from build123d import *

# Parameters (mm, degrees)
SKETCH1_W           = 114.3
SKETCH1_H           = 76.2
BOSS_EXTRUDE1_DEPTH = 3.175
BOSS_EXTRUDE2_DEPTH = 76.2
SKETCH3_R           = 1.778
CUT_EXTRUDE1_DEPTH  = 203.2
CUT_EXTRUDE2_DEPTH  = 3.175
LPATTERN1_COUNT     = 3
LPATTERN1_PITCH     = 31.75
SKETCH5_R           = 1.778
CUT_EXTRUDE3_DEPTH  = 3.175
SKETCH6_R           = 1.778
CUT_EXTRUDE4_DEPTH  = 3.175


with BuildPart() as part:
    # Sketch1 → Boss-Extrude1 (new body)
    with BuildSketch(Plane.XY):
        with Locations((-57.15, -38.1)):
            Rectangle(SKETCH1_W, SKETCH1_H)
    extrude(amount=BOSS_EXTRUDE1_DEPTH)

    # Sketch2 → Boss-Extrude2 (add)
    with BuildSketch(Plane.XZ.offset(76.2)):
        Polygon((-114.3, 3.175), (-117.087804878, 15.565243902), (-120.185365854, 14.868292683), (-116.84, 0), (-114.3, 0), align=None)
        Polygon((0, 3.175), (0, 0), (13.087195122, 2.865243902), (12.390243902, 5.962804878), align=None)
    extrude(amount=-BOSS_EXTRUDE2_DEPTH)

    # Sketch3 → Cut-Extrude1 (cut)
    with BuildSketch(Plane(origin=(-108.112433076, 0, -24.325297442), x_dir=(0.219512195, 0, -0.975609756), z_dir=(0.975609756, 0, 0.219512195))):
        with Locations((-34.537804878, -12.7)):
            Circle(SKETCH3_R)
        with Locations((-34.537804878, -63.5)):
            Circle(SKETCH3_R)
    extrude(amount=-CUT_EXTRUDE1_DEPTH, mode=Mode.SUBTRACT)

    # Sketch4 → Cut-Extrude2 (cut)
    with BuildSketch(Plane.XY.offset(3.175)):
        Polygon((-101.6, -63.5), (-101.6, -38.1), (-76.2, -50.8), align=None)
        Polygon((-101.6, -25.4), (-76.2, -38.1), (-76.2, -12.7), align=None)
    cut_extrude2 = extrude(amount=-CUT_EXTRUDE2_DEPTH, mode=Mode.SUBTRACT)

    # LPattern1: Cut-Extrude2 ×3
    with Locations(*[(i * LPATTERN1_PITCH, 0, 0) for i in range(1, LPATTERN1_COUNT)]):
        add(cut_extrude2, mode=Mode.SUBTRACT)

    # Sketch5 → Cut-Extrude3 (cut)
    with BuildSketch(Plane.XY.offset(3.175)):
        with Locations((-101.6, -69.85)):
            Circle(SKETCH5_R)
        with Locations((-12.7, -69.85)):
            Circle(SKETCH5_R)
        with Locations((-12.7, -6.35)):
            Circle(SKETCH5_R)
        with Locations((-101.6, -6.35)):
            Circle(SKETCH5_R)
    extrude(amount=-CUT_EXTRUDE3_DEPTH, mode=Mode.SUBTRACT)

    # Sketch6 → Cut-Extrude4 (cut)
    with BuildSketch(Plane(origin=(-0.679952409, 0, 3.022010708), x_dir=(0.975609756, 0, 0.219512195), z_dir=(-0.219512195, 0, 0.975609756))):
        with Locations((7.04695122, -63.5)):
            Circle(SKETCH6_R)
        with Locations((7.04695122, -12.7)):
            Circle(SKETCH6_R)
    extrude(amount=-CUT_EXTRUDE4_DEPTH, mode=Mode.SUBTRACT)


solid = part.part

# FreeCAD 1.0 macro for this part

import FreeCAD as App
import Part
import Sketcher
Q = App.Units.Quantity


def add_polygon(sketch, points):
    """Adds a closed chain of lines whose ends are joined by coincident constraints."""
    first, n = sketch.GeometryCount, len(points)
    for a, b in zip(points, points[1:] + points[:1]):
        sketch.addGeometry(Part.LineSegment(App.Vector(*a, 0), App.Vector(*b, 0)), False)
    for i in range(n):
        sketch.addConstraint(Sketcher.Constraint("Coincident", first + i, 2, first + (i + 1) % n, 1))

doc = App.newDocument("Part")
body = doc.addObject("PartDesign::Body", "Body")

sketch1 = body.newObject("Sketcher::SketchObject", "Sketch")
sketch1.AttachmentSupport = (doc.getObject("XY_Plane"), [""])
sketch1.MapMode = "FlatFace"
add_polygon(sketch1, [(-114.3, 0), (-114.3, -76.2), (0, -76.2), (0, 0)])
sketch1.addConstraint([
    Sketcher.Constraint("Vertical", 0),
    Sketcher.Constraint("Horizontal", 1),
    Sketcher.Constraint("Vertical", 2),
    Sketcher.Constraint("Horizontal", 3),
    Sketcher.Constraint("Coincident", 2, 2, -1, 1),
    Sketcher.Constraint("DistanceY", 0, 2, 0, 1, Q("3 in")),
    Sketcher.Constraint("DistanceX", 1, 1, 1, 2, Q("4.5 in")),
])
pad1 = body.newObject("PartDesign::Pad", "Pad")
pad1.Profile = sketch1
pad1.Length = Q("0.125 in")

sketch2 = body.newObject("Sketcher::SketchObject", "Sketch001")
sketch2.AttachmentSupport = (doc.getObject("XZ_Plane"), [""])
sketch2.MapMode = "FlatFace"
sketch2.AttachmentOffset = App.Placement(App.Vector(0, 0, 3 * 25.4), App.Rotation())
add_polygon(sketch2, [(-114.3, 3.175), (-117.087805, 15.565244), (-120.185366, 14.868293), (-116.84, 0), (-114.3, 0)])
add_polygon(sketch2, [(0, 3.175), (0, 0), (13.087195, 2.865244), (12.390244, 5.962805)])
sketch2.addConstraint([
    Sketcher.Constraint("Horizontal", 3),
    Sketcher.Constraint("Vertical", 4),
    Sketcher.Constraint("Vertical", 5),
    Sketcher.Constraint("Coincident", 5, 2, -1, 1),
    Sketcher.Constraint("PointOnObject", 2, 2, -1),
    Sketcher.Constraint("Perpendicular", 0, 1),
    Sketcher.Constraint("Perpendicular", 1, 2),
    Sketcher.Constraint("Parallel", 2, 7),
    Sketcher.Constraint("Perpendicular", 7, 8),
    Sketcher.Constraint("Horizontal", 4, 2, 8, 2),
    Sketcher.Constraint("Equal", 1, 7),
    Sketcher.Constraint("Equal", 0, 8),
    Sketcher.Constraint("DistanceX", 3, 1, 3, 2, Q("0.1 in")),
    Sketcher.Constraint("Distance", 0, Q("0.5 in")),
    Sketcher.Constraint("Distance", 2, Q("0.6 in")),
    Sketcher.Constraint("DistanceX", 2, 2, -1, 1, Q("4.6 in")),
    Sketcher.Constraint("DistanceY", 6, 2, 0, 2, Q("0.5 in")),
])
pad2 = body.newObject("PartDesign::Pad", "Pad001")
pad2.Profile = sketch2
pad2.Length = Q("3 in")
pad2.Reversed = True

sketch3 = body.newObject("Sketcher::SketchObject", "Sketch002")
sketch3.Placement = App.Placement(App.Vector(-108.112433, 0, -24.325297), App.Rotation(App.Vector(0.219512195, 0, -0.975609756), App.Vector(0, 1, 0), App.Vector(0.975609756, 0, 0.219512195), "ZXY"))
sketch3.addGeometry([
    Part.Circle(App.Vector(-34.537805, -12.7, 0), App.Vector(0, 0, 1), 1.778),
    Part.Circle(App.Vector(-34.537805, -63.5, 0), App.Vector(0, 0, 1), 1.778),
], False)
sketch3.addConstraint([
    Sketcher.Constraint("Equal", 0, 1),
    Sketcher.Constraint("Vertical", 0, 3, 1, 3),
    Sketcher.Constraint("Diameter", 0, Q("0.14 in")),
    Sketcher.Constraint("DistanceY", 1, 3, 0, 3, Q("2 in")),
    Sketcher.Constraint("DistanceY", 0, 3, -1, 1, Q("0.5 in")),
    Sketcher.Constraint("DistanceX", 0, 3, -1, 1, Q("34.537805 mm")),
])
pocket1 = body.newObject("PartDesign::Pocket", "Pocket")
pocket1.Profile = sketch3
pocket1.Length = Q("8 in")

sketch4 = body.newObject("Sketcher::SketchObject", "Sketch003")
sketch4.AttachmentSupport = (doc.getObject("XY_Plane"), [""])
sketch4.MapMode = "FlatFace"
sketch4.AttachmentOffset = App.Placement(App.Vector(0, 0, 0.125 * 25.4), App.Rotation())
add_polygon(sketch4, [(-101.6, -38.1), (-101.6, -63.5), (-76.2, -50.8)])
add_polygon(sketch4, [(-101.6, -25.4), (-76.2, -38.1), (-76.2, -12.7)])
sketch4.addConstraint([
    Sketcher.Constraint("Vertical", 0),
    Sketcher.Constraint("Vertical", 4),
    Sketcher.Constraint("Parallel", 2, 3),
    Sketcher.Constraint("Parallel", 1, 5),
    Sketcher.Constraint("Horizontal", 2, 2, 3, 2),
    Sketcher.Constraint("Vertical", 1, 2, 3, 2),
    Sketcher.Constraint("Vertical", 2, 2, 5, 2),
    Sketcher.Constraint("Equal", 1, 2),
    Sketcher.Constraint("DistanceY", 0, 2, 0, 1, Q("1 in")),
    Sketcher.Constraint("DistanceX", 0, 2, -1, 1, Q("4 in")),
    Sketcher.Constraint("DistanceX", 1, 2, -1, 1, Q("3 in")),
    Sketcher.Constraint("DistanceY", 1, 2, -1, 1, Q("2 in")),
])
pocket2 = body.newObject("PartDesign::Pocket", "Pocket001")
pocket2.Profile = sketch4
pocket2.Length = Q("0.125 in")
doc.recompute()

linearpattern = body.newObject("PartDesign::LinearPattern", "LinearPattern")
linearpattern.Originals = [pocket2]
linearpattern.Direction = (doc.getObject("X_Axis"), [""])
linearpattern.Mode = "offset"
linearpattern.Offset = Q("1.25 in")
linearpattern.Occurrences = 3
body.Tip = linearpattern

sketch5 = body.newObject("Sketcher::SketchObject", "Sketch004")
sketch5.AttachmentSupport = (doc.getObject("XY_Plane"), [""])
sketch5.MapMode = "FlatFace"
sketch5.AttachmentOffset = App.Placement(App.Vector(0, 0, 0.125 * 25.4), App.Rotation())
sketch5.addGeometry([
    Part.Circle(App.Vector(-101.6, -69.85, 0), App.Vector(0, 0, 1), 1.778),
    Part.Circle(App.Vector(-12.7, -69.85, 0), App.Vector(0, 0, 1), 1.778),
    Part.Circle(App.Vector(-12.7, -6.35, 0), App.Vector(0, 0, 1), 1.778),
    Part.Circle(App.Vector(-101.6, -6.35, 0), App.Vector(0, 0, 1), 1.778),
], False)
sketch5.addConstraint([
    Sketcher.Constraint("Equal", 0, 1),
    Sketcher.Constraint("Equal", 1, 2),
    Sketcher.Constraint("Equal", 2, 3),
    Sketcher.Constraint("Horizontal", 0, 3, 1, 3),
    Sketcher.Constraint("Horizontal", 2, 3, 3, 3),
    Sketcher.Constraint("Vertical", 1, 3, 2, 3),
    Sketcher.Constraint("Vertical", 0, 3, 3, 3),
    Sketcher.Constraint("Diameter", 0, Q("0.14 in")),
    Sketcher.Constraint("DistanceX", 0, 3, -1, 1, Q("4 in")),
    Sketcher.Constraint("DistanceX", 1, 3, -1, 1, Q("0.5 in")),
    Sketcher.Constraint("DistanceY", 1, 3, 2, 3, Q("2.5 in")),
    Sketcher.Constraint("DistanceY", 0, 3, -1, 1, Q("2.75 in")),
])
pocket3 = body.newObject("PartDesign::Pocket", "Pocket002")
pocket3.Profile = sketch5
pocket3.Length = Q("0.125 in")

sketch6 = body.newObject("Sketcher::SketchObject", "Sketch005")
sketch6.Placement = App.Placement(App.Vector(-0.679952, 0, 3.022011), App.Rotation(App.Vector(0.975609756, 0, 0.219512195), App.Vector(0, 1, 0), App.Vector(-0.219512195, 0, 0.975609756), "ZXY"))
sketch6.addGeometry([
    Part.Circle(App.Vector(7.046951, -63.5, 0), App.Vector(0, 0, 1), 1.778),
    Part.Circle(App.Vector(7.046951, -12.7, 0), App.Vector(0, 0, 1), 1.778),
], False)
sketch6.addConstraint([
    Sketcher.Constraint("Equal", 0, 1),
    Sketcher.Constraint("Vertical", 0, 3, 1, 3),
    Sketcher.Constraint("Diameter", 0, Q("0.14 in")),
    Sketcher.Constraint("DistanceY", 0, 3, 1, 3, Q("2 in")),
    Sketcher.Constraint("DistanceY", 0, 3, -1, 1, Q("2.5 in")),
    Sketcher.Constraint("DistanceX", -1, 1, 0, 3, Q("7.046951 mm")),
])
pocket4 = body.newObject("PartDesign::Pocket", "Pocket003")
pocket4.Profile = sketch6
pocket4.Length = Q("0.125 in")

doc.recompute()
